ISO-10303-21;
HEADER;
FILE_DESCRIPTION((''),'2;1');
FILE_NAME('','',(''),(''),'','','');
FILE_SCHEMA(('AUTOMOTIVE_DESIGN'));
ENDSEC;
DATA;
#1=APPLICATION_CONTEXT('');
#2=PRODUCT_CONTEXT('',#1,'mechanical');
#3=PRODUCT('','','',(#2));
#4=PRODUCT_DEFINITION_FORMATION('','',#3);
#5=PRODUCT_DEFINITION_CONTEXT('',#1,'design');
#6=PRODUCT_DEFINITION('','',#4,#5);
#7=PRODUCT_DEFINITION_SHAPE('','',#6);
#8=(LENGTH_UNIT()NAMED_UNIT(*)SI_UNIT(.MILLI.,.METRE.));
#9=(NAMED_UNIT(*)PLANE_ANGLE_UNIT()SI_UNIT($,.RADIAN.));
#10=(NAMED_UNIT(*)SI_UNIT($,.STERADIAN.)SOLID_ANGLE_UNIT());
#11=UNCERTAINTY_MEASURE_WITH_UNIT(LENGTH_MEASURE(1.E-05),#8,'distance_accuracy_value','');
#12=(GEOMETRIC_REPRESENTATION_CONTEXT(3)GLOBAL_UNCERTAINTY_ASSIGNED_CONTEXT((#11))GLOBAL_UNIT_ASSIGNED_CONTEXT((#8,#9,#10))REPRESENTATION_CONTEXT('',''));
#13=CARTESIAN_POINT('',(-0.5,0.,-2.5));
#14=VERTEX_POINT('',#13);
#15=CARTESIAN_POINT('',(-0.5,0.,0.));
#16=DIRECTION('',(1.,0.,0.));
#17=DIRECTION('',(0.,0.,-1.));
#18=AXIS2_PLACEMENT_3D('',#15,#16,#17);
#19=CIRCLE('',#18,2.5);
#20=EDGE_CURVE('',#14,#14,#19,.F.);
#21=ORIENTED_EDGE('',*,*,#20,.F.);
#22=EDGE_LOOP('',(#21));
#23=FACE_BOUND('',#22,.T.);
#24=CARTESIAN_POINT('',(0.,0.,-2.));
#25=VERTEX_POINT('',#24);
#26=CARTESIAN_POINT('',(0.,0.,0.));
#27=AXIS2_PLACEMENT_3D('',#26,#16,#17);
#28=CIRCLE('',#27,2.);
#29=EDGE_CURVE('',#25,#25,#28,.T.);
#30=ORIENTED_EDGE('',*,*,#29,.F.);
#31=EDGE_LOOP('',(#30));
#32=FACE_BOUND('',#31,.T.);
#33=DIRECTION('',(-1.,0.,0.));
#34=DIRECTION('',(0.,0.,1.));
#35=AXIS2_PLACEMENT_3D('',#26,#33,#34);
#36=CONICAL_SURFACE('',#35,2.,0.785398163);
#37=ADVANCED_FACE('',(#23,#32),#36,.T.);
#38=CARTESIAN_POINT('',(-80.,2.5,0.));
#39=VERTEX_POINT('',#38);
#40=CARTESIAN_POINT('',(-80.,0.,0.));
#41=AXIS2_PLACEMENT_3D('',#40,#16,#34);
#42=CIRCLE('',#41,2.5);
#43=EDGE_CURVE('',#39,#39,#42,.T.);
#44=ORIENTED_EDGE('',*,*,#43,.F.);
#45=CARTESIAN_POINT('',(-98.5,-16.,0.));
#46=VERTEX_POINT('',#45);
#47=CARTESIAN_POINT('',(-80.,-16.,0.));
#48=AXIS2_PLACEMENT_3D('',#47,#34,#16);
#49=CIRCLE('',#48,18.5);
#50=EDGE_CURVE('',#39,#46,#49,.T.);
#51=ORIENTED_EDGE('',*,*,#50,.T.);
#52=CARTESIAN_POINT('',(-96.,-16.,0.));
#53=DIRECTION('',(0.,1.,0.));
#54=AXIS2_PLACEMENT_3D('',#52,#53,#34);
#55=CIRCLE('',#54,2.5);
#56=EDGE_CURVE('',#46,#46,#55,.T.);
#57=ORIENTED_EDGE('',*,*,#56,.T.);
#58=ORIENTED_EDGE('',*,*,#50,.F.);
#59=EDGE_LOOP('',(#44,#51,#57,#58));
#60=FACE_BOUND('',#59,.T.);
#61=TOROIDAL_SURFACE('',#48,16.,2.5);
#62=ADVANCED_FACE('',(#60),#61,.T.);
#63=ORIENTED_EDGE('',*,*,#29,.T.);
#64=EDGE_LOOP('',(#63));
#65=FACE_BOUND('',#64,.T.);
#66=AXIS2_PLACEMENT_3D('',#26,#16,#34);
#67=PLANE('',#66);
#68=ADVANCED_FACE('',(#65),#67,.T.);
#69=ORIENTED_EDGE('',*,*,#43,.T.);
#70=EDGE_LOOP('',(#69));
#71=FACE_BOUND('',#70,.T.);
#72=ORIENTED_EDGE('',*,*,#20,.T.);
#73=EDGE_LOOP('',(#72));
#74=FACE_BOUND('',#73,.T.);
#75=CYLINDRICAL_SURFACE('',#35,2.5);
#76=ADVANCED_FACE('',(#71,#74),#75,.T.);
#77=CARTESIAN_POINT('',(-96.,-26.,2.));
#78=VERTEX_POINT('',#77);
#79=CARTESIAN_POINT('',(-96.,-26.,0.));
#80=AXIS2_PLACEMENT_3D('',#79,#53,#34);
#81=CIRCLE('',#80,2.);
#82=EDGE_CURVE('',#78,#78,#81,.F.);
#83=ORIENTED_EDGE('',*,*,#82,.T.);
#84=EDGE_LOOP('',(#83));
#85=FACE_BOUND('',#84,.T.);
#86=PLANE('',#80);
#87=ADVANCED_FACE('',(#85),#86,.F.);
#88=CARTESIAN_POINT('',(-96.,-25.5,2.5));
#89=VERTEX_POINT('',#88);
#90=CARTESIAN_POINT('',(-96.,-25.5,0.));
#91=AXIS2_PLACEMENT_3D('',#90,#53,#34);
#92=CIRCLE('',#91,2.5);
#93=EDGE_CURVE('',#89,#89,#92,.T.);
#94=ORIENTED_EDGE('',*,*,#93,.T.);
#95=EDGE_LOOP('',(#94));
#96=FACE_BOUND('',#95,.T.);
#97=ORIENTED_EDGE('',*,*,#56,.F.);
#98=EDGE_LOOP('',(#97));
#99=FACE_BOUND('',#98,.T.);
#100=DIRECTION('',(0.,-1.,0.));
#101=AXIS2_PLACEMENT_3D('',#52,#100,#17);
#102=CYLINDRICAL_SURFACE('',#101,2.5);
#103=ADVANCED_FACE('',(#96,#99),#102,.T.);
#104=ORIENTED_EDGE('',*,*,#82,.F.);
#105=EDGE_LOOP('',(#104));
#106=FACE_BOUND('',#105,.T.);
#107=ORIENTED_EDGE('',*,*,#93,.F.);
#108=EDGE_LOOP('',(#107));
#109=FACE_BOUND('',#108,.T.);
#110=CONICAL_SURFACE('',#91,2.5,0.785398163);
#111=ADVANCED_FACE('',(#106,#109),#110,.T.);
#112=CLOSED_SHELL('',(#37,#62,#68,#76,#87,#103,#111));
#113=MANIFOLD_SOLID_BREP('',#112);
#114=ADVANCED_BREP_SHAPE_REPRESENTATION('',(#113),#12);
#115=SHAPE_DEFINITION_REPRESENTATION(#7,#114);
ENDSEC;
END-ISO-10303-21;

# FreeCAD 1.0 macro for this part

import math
import FreeCAD as App
import Part
import Sketcher
from FreeCAD import Vector


def edges_at(feature, points):
    """Names of the edges that pass closest to the given points."""
    edges = feature.Shape.Edges
    near = lambda p: min(range(len(edges)), key=lambda i: edges[i].distToShape(Part.Vertex(*p))[0])
    return sorted({f"Edge{near(p) + 1}" for p in points})

doc = App.newDocument("Part")
body = doc.addObject("PartDesign::Body", "Body")

# Sketch on YZ plane
sketch1 = body.newObject("Sketcher::SketchObject", "Sketch")
sketch1.AttachmentSupport = (doc.getObject("YZ_Plane"), [""])
sketch1.MapMode = "FlatFace"
sketch1.addGeometry(Part.Circle(Vector(0, 0, 0), Vector(0, 0, 1), 2.5), False)
sketch1.addConstraint(Sketcher.Constraint("Coincident", 0, 3, -1, 1))
sketch1.addConstraint(Sketcher.Constraint("Diameter", 0, 5.0))

# Sketch on XY plane
sketch2 = body.newObject("Sketcher::SketchObject", "Sketch001")
sketch2.AttachmentSupport = (doc.getObject("XY_Plane"), [""])
sketch2.MapMode = "FlatFace"
sketch2.addGeometry(Part.LineSegment(Vector(0, 0, 0), Vector(-80, 0, 0)), False)
sketch2.addGeometry(Part.ArcOfCircle(Part.Circle(Vector(-80, -16, 0), Vector(0, 0, 1), 16), math.radians(90), math.radians(180)), False)
sketch2.addGeometry(Part.LineSegment(Vector(-96, -16, 0), Vector(-96, -26, 0)), False)
sketch2.addConstraint(Sketcher.Constraint("Tangent", 0, 2, 1, 1))
sketch2.addConstraint(Sketcher.Constraint("Tangent", 1, 2, 2, 1))
sketch2.addConstraint(Sketcher.Constraint("Horizontal", 0))
sketch2.addConstraint(Sketcher.Constraint("Vertical", 2))
sketch2.addConstraint(Sketcher.Constraint("Coincident", 0, 1, -1, 1))
sketch2.addConstraint(Sketcher.Constraint("Radius", 1, 16.0))
sketch2.addConstraint(Sketcher.Constraint("DistanceX", 0, 2, 0, 1, 80.0))
sketch2.addConstraint(Sketcher.Constraint("DistanceY", 2, 2, 2, 1, 10.0))
doc.recompute()

additivepipe = body.newObject("PartDesign::AdditivePipe", "AdditivePipe")
additivepipe.Profile = sketch1
additivepipe.Spine = (sketch2, ["Edge1", "Edge2", "Edge3"])
doc.recompute()

chamfer = body.newObject("PartDesign::Chamfer", "Chamfer")
chamfer.Base = (additivepipe, edges_at(additivepipe, [(-96, -26, 2.5), (0, 0, 2.5)]))
chamfer.Size = 0.5

doc.recompute()
